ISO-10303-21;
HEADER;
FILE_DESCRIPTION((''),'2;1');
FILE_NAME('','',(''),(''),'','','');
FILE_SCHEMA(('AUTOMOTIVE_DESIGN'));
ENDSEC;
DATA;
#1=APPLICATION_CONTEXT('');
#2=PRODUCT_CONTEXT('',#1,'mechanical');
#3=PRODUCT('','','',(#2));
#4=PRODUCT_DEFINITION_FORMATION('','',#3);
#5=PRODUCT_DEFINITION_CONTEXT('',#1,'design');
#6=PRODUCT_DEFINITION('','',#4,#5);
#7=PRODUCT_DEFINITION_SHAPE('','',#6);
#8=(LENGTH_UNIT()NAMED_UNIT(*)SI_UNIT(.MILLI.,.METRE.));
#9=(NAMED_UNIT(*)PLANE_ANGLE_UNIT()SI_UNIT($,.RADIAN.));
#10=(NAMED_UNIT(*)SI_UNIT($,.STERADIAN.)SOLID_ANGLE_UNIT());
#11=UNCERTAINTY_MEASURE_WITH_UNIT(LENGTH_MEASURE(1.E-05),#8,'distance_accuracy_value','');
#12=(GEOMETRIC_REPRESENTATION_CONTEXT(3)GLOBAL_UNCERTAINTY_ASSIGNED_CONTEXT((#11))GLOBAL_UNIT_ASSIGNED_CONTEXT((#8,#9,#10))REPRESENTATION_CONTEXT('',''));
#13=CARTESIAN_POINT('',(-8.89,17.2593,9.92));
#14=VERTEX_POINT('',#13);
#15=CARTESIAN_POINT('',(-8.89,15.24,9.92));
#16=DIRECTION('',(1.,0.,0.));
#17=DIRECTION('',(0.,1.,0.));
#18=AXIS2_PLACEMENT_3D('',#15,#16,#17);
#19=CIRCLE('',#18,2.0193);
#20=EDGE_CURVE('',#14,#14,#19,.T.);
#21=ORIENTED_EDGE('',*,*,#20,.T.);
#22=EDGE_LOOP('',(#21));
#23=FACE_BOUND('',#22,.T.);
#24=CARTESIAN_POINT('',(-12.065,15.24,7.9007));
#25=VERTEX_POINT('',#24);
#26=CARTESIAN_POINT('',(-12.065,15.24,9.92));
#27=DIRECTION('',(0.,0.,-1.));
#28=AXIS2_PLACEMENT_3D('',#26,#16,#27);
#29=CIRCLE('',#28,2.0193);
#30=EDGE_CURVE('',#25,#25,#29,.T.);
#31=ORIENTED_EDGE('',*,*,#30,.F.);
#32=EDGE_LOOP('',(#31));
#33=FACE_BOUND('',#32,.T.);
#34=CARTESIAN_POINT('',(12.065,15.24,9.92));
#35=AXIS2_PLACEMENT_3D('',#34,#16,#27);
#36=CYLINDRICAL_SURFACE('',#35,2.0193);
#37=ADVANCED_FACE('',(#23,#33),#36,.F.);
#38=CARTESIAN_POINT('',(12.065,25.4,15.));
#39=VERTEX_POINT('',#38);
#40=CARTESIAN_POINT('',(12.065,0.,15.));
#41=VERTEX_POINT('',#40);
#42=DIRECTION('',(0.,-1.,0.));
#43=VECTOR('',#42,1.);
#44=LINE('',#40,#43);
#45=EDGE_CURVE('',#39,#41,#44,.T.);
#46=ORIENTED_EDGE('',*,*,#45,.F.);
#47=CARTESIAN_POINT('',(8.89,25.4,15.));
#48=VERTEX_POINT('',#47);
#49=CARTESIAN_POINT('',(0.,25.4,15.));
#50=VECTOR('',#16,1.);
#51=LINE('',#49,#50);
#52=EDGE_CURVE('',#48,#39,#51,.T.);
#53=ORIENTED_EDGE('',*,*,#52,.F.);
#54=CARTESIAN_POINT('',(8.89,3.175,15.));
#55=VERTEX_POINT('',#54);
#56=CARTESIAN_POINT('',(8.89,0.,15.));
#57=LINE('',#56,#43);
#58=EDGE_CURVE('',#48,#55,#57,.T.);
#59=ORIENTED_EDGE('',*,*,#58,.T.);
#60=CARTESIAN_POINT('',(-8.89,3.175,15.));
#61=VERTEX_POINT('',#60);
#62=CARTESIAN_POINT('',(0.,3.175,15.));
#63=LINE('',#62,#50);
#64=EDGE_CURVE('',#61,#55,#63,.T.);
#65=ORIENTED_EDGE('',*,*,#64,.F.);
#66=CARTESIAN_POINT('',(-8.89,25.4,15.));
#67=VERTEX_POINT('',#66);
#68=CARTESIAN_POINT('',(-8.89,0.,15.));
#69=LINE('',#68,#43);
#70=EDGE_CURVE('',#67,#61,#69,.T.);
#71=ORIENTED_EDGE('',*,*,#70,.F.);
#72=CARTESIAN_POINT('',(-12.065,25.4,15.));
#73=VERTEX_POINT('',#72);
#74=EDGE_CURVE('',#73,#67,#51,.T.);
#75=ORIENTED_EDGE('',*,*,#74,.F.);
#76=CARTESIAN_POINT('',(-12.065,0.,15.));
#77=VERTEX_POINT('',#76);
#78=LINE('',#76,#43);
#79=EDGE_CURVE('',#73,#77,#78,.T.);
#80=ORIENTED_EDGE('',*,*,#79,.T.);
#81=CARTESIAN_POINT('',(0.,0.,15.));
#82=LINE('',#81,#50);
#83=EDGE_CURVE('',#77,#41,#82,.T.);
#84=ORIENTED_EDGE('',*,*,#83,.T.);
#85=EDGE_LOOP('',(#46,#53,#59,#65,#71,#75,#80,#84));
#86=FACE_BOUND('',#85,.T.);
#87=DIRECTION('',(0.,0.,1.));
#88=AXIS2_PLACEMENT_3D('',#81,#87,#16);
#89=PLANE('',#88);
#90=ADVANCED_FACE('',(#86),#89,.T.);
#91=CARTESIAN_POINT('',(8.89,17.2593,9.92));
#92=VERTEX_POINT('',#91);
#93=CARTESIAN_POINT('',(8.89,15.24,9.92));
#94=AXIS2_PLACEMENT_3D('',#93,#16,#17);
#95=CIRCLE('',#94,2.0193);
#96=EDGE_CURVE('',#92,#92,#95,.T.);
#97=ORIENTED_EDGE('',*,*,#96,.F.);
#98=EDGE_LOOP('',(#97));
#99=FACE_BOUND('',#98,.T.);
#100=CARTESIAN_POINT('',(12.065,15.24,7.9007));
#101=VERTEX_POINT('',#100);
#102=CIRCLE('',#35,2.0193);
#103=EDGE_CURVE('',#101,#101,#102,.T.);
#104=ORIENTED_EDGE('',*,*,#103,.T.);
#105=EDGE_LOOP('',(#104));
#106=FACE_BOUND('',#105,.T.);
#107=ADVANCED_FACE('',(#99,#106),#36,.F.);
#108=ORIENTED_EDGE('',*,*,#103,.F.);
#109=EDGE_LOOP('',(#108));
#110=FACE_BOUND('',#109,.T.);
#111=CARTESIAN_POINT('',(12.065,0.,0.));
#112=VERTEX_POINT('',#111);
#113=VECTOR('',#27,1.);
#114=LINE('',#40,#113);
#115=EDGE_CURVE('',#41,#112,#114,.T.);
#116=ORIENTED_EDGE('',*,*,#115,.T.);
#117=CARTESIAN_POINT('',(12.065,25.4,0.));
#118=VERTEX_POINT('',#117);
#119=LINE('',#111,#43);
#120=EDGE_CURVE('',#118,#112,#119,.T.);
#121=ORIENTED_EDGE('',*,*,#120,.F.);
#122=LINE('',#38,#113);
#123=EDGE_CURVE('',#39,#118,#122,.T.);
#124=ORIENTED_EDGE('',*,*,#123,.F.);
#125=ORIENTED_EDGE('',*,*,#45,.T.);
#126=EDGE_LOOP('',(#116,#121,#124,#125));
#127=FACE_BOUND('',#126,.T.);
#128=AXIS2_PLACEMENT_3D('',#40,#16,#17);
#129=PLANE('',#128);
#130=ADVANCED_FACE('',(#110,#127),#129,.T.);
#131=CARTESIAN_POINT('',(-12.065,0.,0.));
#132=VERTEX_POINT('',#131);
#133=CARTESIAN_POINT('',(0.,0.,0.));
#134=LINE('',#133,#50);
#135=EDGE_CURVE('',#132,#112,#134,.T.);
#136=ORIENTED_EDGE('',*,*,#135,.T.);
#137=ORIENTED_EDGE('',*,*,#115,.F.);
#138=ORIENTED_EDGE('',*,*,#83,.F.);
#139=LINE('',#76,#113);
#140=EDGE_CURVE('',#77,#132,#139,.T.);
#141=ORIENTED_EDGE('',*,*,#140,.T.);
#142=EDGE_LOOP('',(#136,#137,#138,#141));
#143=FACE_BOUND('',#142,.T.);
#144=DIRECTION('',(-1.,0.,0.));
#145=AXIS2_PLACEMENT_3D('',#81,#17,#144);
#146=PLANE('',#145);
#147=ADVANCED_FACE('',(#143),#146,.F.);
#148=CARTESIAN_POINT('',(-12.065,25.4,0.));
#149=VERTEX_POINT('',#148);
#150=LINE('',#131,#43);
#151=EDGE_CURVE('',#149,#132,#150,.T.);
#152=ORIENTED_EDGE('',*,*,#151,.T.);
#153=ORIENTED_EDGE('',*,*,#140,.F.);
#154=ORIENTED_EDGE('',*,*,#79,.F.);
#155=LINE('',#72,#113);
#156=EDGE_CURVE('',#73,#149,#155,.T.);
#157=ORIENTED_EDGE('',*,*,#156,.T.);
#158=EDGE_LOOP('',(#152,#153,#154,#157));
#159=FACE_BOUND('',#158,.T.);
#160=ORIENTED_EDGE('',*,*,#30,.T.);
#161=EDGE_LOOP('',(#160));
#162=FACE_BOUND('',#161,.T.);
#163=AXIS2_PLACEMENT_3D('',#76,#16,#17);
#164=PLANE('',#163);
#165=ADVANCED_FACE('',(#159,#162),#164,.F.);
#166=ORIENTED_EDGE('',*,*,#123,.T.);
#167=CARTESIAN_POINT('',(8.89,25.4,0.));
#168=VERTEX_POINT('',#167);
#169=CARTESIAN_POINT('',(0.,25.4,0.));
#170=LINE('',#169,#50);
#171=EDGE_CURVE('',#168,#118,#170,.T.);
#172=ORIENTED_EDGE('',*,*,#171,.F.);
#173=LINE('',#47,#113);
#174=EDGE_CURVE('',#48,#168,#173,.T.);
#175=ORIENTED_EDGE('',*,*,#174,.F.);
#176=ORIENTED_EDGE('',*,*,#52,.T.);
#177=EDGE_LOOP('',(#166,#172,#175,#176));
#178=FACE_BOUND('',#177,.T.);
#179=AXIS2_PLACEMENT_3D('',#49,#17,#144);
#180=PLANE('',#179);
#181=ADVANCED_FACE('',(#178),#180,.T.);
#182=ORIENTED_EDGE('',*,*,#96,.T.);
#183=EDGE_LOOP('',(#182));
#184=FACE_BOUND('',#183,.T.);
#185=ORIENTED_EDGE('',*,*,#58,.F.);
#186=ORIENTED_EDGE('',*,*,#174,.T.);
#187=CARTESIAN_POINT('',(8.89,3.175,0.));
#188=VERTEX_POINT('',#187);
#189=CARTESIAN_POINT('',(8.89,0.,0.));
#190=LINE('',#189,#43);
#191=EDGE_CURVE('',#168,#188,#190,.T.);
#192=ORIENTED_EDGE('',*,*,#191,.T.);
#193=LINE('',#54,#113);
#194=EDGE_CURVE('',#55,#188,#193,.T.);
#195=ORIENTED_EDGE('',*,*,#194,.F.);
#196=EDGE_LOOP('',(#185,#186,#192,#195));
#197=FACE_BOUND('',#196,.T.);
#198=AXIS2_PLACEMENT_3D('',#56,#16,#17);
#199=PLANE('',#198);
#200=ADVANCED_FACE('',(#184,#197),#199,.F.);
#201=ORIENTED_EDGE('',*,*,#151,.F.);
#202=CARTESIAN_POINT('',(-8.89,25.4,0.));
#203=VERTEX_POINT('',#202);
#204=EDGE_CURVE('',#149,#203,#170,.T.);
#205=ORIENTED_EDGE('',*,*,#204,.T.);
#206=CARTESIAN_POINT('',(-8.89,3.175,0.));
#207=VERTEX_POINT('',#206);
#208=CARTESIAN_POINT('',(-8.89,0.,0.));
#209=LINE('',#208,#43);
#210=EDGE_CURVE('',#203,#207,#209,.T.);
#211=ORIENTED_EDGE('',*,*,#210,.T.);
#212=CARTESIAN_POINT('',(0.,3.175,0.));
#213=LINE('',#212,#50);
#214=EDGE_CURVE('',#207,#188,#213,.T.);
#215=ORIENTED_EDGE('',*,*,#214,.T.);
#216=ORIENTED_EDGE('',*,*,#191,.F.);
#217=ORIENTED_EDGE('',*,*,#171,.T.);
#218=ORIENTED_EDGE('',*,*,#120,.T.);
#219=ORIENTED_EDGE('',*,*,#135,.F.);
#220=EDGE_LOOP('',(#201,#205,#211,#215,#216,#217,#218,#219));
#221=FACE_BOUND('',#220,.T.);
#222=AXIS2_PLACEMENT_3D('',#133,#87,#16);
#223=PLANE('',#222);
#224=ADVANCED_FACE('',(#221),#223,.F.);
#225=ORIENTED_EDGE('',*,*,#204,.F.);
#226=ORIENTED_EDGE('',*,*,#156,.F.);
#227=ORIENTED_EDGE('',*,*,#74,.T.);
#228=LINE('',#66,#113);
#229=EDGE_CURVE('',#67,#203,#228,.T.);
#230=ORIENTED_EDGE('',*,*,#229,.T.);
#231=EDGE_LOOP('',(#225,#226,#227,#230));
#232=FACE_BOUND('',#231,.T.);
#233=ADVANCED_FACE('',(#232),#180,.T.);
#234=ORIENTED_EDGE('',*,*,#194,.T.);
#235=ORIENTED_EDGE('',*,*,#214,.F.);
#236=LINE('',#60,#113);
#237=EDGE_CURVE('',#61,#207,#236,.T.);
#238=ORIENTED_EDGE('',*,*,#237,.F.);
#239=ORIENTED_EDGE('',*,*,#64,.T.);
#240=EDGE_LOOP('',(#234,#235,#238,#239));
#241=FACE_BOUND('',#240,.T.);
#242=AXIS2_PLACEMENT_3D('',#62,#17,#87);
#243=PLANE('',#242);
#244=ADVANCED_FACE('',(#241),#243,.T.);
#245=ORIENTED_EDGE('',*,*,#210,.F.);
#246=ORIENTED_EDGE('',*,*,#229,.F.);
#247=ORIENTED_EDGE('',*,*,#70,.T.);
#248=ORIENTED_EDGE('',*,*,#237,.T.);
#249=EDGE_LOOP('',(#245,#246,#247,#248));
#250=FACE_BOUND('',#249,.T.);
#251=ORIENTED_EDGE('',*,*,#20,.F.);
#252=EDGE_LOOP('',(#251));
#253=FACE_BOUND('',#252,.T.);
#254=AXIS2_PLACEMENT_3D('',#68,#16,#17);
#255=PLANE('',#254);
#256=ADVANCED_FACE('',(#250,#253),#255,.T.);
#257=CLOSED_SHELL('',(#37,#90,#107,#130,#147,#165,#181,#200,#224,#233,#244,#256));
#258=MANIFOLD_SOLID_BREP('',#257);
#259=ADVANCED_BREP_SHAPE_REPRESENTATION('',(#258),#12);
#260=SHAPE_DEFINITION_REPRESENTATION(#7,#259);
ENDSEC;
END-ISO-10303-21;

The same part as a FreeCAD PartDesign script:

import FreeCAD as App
import Part
import Sketcher
Q = App.Units.Quantity

doc = App.newDocument("Part")
body = doc.addObject("PartDesign::Body", "Body")

sketch1 = body.newObject("Sketcher::SketchObject", "Sketch")
sketch1.AttachmentSupport = (doc.getObject("XY_Plane"), [""])
sketch1.MapMode = "FlatFace"
sketch1.addGeometry([
    Part.LineSegment(App.Vector(-8.89, 25.4, 0), App.Vector(-12.065, 25.4, 0)),
    Part.LineSegment(App.Vector(-12.065, 25.4, 0), App.Vector(-12.065, 0, 0)),
    Part.LineSegment(App.Vector(-12.065, 0, 0), App.Vector(12.065, 0, 0)),
    Part.LineSegment(App.Vector(12.065, 0, 0), App.Vector(12.065, 25.4, 0)),
    Part.LineSegment(App.Vector(12.065, 25.4, 0), App.Vector(8.89, 25.4, 0)),
    Part.LineSegment(App.Vector(8.89, 25.4, 0), App.Vector(8.89, 3.175, 0)),
    Part.LineSegment(App.Vector(8.89, 3.175, 0), App.Vector(-8.89, 3.175, 0)),
    Part.LineSegment(App.Vector(-8.89, 3.175, 0), App.Vector(-8.89, 25.4, 0)),
], False)
sketch1.addConstraint([
    Sketcher.Constraint("Coincident", 0, 2, 1, 1),
    Sketcher.Constraint("Coincident", 1, 2, 2, 1),
    Sketcher.Constraint("Coincident", 2, 2, 3, 1),
    Sketcher.Constraint("Coincident", 3, 2, 4, 1),
    Sketcher.Constraint("Coincident", 4, 2, 5, 1),
    Sketcher.Constraint("Coincident", 5, 2, 6, 1),
    Sketcher.Constraint("Coincident", 6, 2, 7, 1),
    Sketcher.Constraint("Coincident", 7, 2, 0, 1),
    Sketcher.Constraint("Horizontal", 0),
    Sketcher.Constraint("Vertical", 1),
    Sketcher.Constraint("Horizontal", 2),
    Sketcher.Constraint("Vertical", 3),
    Sketcher.Constraint("Horizontal", 4),
    Sketcher.Constraint("Vertical", 5),
    Sketcher.Constraint("Horizontal", 6),
    Sketcher.Constraint("Vertical", 7),
    Sketcher.Constraint("Symmetric", 1, 2, 2, 2, -1, 1),
    Sketcher.Constraint("Symmetric", 4, 2, 7, 2, -2),
    Sketcher.Constraint("DistanceY", 1, 2, 1, 1, Q("1 in")),
    Sketcher.Constraint("DistanceX", 6, 2, 6, 1, Q("0.7 in")),
    Sketcher.Constraint("DistanceX", 2, 1, 2, 2, Q("0.95 in")),
    Sketcher.Constraint("DistanceY", 5, 2, 5, 1, Q("0.875 in")),
])
pad1 = body.newObject("PartDesign::Pad", "Pad")
pad1.Profile = sketch1
pad1.Length = 15

sketch2 = body.newObject("Sketcher::SketchObject", "Sketch001")
sketch2.AttachmentSupport = (doc.getObject("YZ_Plane"), [""])
sketch2.MapMode = "FlatFace"
sketch2.AttachmentOffset = App.Placement(App.Vector(0, 0, 0.475 * 25.4), App.Rotation())
sketch2.addGeometry(Part.Circle(App.Vector(15.24, 9.92, 0), App.Vector(0, 0, 1), 2.0193), False)
sketch2.addConstraint([
    Sketcher.Constraint("Diameter", 0, Q("0.159 in")),
    Sketcher.Constraint("DistanceX", -1, 1, 0, 3, Q("0.6 in")),
    Sketcher.Constraint("DistanceY", -1, 1, 0, 3, 9.92),
])
doc.recompute()
hole = body.newObject("PartDesign::Hole", "Hole")
hole.Profile = sketch2
hole.ThreadType = "None"
hole.Diameter = Q("0.159 in")
hole.DepthType = "ThroughAll"

doc.recompute()
